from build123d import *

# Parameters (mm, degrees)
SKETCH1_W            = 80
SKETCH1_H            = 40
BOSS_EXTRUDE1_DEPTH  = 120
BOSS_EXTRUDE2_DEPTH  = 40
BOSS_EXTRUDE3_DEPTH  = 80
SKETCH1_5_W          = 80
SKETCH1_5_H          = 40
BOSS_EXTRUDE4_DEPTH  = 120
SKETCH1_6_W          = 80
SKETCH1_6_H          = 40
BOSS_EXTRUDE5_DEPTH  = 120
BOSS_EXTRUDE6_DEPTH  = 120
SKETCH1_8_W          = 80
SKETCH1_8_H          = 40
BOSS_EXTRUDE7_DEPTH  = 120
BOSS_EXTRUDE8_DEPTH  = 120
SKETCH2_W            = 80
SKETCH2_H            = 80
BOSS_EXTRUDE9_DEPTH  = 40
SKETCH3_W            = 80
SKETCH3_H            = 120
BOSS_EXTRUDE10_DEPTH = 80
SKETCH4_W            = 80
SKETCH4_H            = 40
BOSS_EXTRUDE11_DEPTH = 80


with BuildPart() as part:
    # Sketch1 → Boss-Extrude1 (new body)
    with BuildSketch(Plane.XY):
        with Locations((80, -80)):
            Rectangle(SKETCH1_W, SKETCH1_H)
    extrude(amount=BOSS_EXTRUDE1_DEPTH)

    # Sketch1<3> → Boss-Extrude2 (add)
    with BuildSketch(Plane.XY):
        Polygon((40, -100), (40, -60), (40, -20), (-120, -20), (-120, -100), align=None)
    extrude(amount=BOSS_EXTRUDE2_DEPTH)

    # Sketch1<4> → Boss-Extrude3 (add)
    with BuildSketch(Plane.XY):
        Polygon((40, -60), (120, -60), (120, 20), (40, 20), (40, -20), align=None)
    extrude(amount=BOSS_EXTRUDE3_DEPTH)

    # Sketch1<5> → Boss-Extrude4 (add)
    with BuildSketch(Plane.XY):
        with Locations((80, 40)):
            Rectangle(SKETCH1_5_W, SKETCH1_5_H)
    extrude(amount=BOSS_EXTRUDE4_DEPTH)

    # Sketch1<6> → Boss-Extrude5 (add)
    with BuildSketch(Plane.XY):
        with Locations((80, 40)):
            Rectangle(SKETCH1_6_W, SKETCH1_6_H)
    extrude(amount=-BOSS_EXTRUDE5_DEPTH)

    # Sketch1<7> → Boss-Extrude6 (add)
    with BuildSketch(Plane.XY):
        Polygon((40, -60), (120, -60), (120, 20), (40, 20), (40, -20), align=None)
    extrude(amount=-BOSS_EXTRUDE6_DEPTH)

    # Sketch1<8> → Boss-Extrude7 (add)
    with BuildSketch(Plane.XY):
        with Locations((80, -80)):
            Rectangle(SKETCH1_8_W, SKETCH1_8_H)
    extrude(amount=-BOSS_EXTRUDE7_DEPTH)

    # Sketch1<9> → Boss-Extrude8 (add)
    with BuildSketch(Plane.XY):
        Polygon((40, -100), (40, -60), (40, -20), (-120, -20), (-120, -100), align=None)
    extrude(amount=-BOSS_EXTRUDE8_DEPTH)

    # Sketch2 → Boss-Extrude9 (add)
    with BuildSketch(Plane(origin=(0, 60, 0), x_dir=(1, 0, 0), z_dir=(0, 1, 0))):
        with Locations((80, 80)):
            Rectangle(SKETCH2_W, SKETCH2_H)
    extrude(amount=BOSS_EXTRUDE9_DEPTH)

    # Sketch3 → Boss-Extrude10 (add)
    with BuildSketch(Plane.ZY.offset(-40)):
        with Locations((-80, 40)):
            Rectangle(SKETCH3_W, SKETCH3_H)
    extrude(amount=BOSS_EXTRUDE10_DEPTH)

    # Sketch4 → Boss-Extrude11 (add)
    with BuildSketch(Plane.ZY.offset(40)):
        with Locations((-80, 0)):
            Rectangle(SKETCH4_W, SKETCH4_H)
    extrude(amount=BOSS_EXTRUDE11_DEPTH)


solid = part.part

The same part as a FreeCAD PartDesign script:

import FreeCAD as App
import Part
import Sketcher

V = App.Vector
Q = App.Units.Quantity


def add_polygon(sketch, points):
    """Adds a closed chain of lines whose ends are joined by coincident constraints."""
    first, n = sketch.GeometryCount, len(points)
    for a, b in zip(points, points[1:] + points[:1]):
        sketch.addGeometry(Part.LineSegment(App.Vector(*a, 0), App.Vector(*b, 0)), False)
    for i in range(n):
        sketch.addConstraint(Sketcher.Constraint("Coincident", first + i, 2, first + (i + 1) % n, 1))

doc = App.newDocument("Part")
body = doc.addObject("PartDesign::Body", "Body")

sketch1 = body.newObject("Sketcher::SketchObject", "Sketch")
sketch1.AttachmentSupport = (doc.getObject("XY_Plane"), [""])
sketch1.MapMode = "FlatFace"
add_polygon(sketch1, [(40, -60), (40, -100), (120, -100), (120, -60)])
sketch1.addConstraint([
    Sketcher.Constraint("Vertical", 0),
    Sketcher.Constraint("Horizontal", 1),
    Sketcher.Constraint("Vertical", 2),
    Sketcher.Constraint("Horizontal", 3),
    Sketcher.Constraint("DistanceX", 1, 1, 1, 2, Q("80 mm")),
    Sketcher.Constraint("DistanceY", 0, 2, 0, 1, Q("40 mm")),
    Sketcher.Constraint("DistanceX", -1, 1, 0, 2, Q("40 mm")),
    Sketcher.Constraint("DistanceY", 0, 2, -1, 1, Q("100 mm")),
])
pad1 = body.newObject("PartDesign::Pad", "Pad")
pad1.Profile = sketch1
pad1.Length = 120

sketch2 = body.newObject("Sketcher::SketchObject", "Sketch001")
sketch2.AttachmentSupport = (doc.getObject("XY_Plane"), [""])
sketch2.MapMode = "FlatFace"
add_polygon(sketch2, [(40, -100), (40, -20), (-120, -20), (-120, -100)])
sketch2.addConstraint([
    Sketcher.Constraint("Vertical", 0),
    Sketcher.Constraint("Horizontal", 1),
    Sketcher.Constraint("Vertical", 2),
    Sketcher.Constraint("Horizontal", 3),
    Sketcher.Constraint("DistanceX", 1, 2, 1, 1, Q("160 mm")),
    Sketcher.Constraint("DistanceY", 0, 1, 0, 2, Q("80 mm")),
    Sketcher.Constraint("DistanceX", -1, 1, 0, 2, Q("40 mm")),
    Sketcher.Constraint("DistanceY", 0, 2, -1, 1, Q("20 mm")),
])
pad2 = body.newObject("PartDesign::Pad", "Pad001")
pad2.Profile = sketch2
pad2.Length = 40

sketch3 = body.newObject("Sketcher::SketchObject", "Sketch002")
sketch3.AttachmentSupport = (doc.getObject("XY_Plane"), [""])
sketch3.MapMode = "FlatFace"
add_polygon(sketch3, [(40, -60), (120, -60), (120, 20), (40, 20)])
sketch3.addConstraint([
    Sketcher.Constraint("Horizontal", 0),
    Sketcher.Constraint("Vertical", 1),
    Sketcher.Constraint("Horizontal", 2),
    Sketcher.Constraint("Vertical", 3),
    Sketcher.Constraint("Equal", 2, 1),
    Sketcher.Constraint("DistanceX", 0, 1, 0, 2, Q("80 mm")),
    Sketcher.Constraint("DistanceX", -1, 1, 0, 2, Q("120 mm")),
    Sketcher.Constraint("DistanceY", 0, 2, -1, 1, Q("60 mm")),
])
pad3 = body.newObject("PartDesign::Pad", "Pad002")
pad3.Profile = sketch3
pad3.Length = 80

sketch4 = body.newObject("Sketcher::SketchObject", "Sketch003")
sketch4.AttachmentSupport = (doc.getObject("XY_Plane"), [""])
sketch4.MapMode = "FlatFace"
add_polygon(sketch4, [(40, 60), (40, 20), (120, 20), (120, 60)])
sketch4.addConstraint([
    Sketcher.Constraint("Vertical", 0),
    Sketcher.Constraint("Horizontal", 1),
    Sketcher.Constraint("Vertical", 2),
    Sketcher.Constraint("Horizontal", 3),
    Sketcher.Constraint("DistanceX", 1, 1, 1, 2, Q("80 mm")),
    Sketcher.Constraint("DistanceY", 0, 2, 0, 1, Q("40 mm")),
    Sketcher.Constraint("DistanceX", -1, 1, 0, 2, Q("40 mm")),
    Sketcher.Constraint("DistanceY", -1, 1, 0, 2, Q("20 mm")),
])
pad4 = body.newObject("PartDesign::Pad", "Pad003")
pad4.Profile = sketch4
pad4.Length = 120

sketch5 = body.newObject("Sketcher::SketchObject", "Sketch004")
sketch5.AttachmentSupport = (doc.getObject("XY_Plane"), [""])
sketch5.MapMode = "FlatFace"
add_polygon(sketch5, [(40, 60), (40, 20), (120, 20), (120, 60)])
sketch5.addConstraint([
    Sketcher.Constraint("Vertical", 0),
    Sketcher.Constraint("Horizontal", 1),
    Sketcher.Constraint("Vertical", 2),
    Sketcher.Constraint("Horizontal", 3),
    Sketcher.Constraint("DistanceX", 1, 1, 1, 2, Q("80 mm")),
    Sketcher.Constraint("DistanceY", 0, 2, 0, 1, Q("40 mm")),
    Sketcher.Constraint("DistanceX", -1, 1, 0, 2, Q("40 mm")),
    Sketcher.Constraint("DistanceY", -1, 1, 0, 2, Q("20 mm")),
])
pad5 = body.newObject("PartDesign::Pad", "Pad004")
pad5.Profile = sketch5
pad5.Length = 120
pad5.Reversed = True

sketch6 = body.newObject("Sketcher::SketchObject", "Sketch005")
sketch6.AttachmentSupport = (doc.getObject("XY_Plane"), [""])
sketch6.MapMode = "FlatFace"
add_polygon(sketch6, [(40, -60), (120, -60), (120, 20), (40, 20)])
sketch6.addConstraint([
    Sketcher.Constraint("Horizontal", 0),
    Sketcher.Constraint("Vertical", 1),
    Sketcher.Constraint("Horizontal", 2),
    Sketcher.Constraint("Vertical", 3),
    Sketcher.Constraint("Equal", 2, 1),
    Sketcher.Constraint("DistanceX", 0, 1, 0, 2, Q("80 mm")),
    Sketcher.Constraint("DistanceX", -1, 1, 0, 2, Q("120 mm")),
    Sketcher.Constraint("DistanceY", 0, 2, -1, 1, Q("60 mm")),
])
pad6 = body.newObject("PartDesign::Pad", "Pad005")
pad6.Profile = sketch6
pad6.Length = 120
pad6.Reversed = True

sketch7 = body.newObject("Sketcher::SketchObject", "Sketch006")
sketch7.AttachmentSupport = (doc.getObject("XY_Plane"), [""])
sketch7.MapMode = "FlatFace"
add_polygon(sketch7, [(40, -60), (40, -100), (120, -100), (120, -60)])
sketch7.addConstraint([
    Sketcher.Constraint("Vertical", 0),
    Sketcher.Constraint("Horizontal", 1),
    Sketcher.Constraint("Vertical", 2),
    Sketcher.Constraint("Horizontal", 3),
    Sketcher.Constraint("DistanceX", 1, 1, 1, 2, Q("80 mm")),
    Sketcher.Constraint("DistanceY", 0, 2, 0, 1, Q("40 mm")),
    Sketcher.Constraint("DistanceX", -1, 1, 0, 2, Q("40 mm")),
    Sketcher.Constraint("DistanceY", 0, 2, -1, 1, Q("100 mm")),
])
pad7 = body.newObject("PartDesign::Pad", "Pad006")
pad7.Profile = sketch7
pad7.Length = 120
pad7.Reversed = True

sketch8 = body.newObject("Sketcher::SketchObject", "Sketch007")
sketch8.AttachmentSupport = (doc.getObject("XY_Plane"), [""])
sketch8.MapMode = "FlatFace"
add_polygon(sketch8, [(40, -100), (40, -20), (-120, -20), (-120, -100)])
sketch8.addConstraint([
    Sketcher.Constraint("Vertical", 0),
    Sketcher.Constraint("Horizontal", 1),
    Sketcher.Constraint("Vertical", 2),
    Sketcher.Constraint("Horizontal", 3),
    Sketcher.Constraint("DistanceX", 1, 2, 1, 1, Q("160 mm")),
    Sketcher.Constraint("DistanceY", 0, 1, 0, 2, Q("80 mm")),
    Sketcher.Constraint("DistanceX", -1, 1, 0, 2, Q("40 mm")),
    Sketcher.Constraint("DistanceY", 0, 2, -1, 1, Q("20 mm")),
])
pad8 = body.newObject("PartDesign::Pad", "Pad007")
pad8.Profile = sketch8
pad8.Length = 120
pad8.Reversed = True

sketch9 = body.newObject("Sketcher::SketchObject", "Sketch008")
sketch9.AttachmentSupport = (doc.getObject("XZ_Plane"), [""])
sketch9.MapMode = "FlatFace"
sketch9.AttachmentOffset = App.Placement(V(0, 0, -60), App.Rotation())
add_polygon(sketch9, [(40, -120), (40, -40), (120, -40), (120, -120)])
sketch9.addConstraint([
    Sketcher.Constraint("Vertical", 0),
    Sketcher.Constraint("Horizontal", 1),
    Sketcher.Constraint("Vertical", 2),
    Sketcher.Constraint("Horizontal", 3),
    Sketcher.Constraint("Equal", 3, 0),
    Sketcher.Constraint("DistanceX", 1, 1, 1, 2, Q("80 mm")),
    Sketcher.Constraint("DistanceX", -1, 1, 0, 2, Q("40 mm")),
    Sketcher.Constraint("DistanceY", 0, 2, -1, 1, Q("40 mm")),
])
pad9 = body.newObject("PartDesign::Pad", "Pad008")
pad9.Profile = sketch9
pad9.Length = 40
pad9.Reversed = True

sketch10 = body.newObject("Sketcher::SketchObject", "Sketch009")
sketch10.AttachmentSupport = (doc.getObject("YZ_Plane"), [""])
sketch10.MapMode = "FlatFace"
sketch10.AttachmentOffset = App.Placement(V(0, 0, 40), App.Rotation())
add_polygon(sketch10, [(100, -120), (-20, -120), (-20, -40), (100, -40)])
sketch10.addConstraint([
    Sketcher.Constraint("Horizontal", 0),
    Sketcher.Constraint("Vertical", 1),
    Sketcher.Constraint("Horizontal", 2),
    Sketcher.Constraint("Vertical", 3),
    Sketcher.Constraint("DistanceX", 0, 2, 0, 1, Q("120 mm")),
    Sketcher.Constraint("DistanceY", 1, 1, 1, 2, Q("80 mm")),
    Sketcher.Constraint("DistanceX", 0, 2, -1, 1, Q("20 mm")),
    Sketcher.Constraint("DistanceY", 0, 2, -1, 1, Q("120 mm")),
])
pad10 = body.newObject("PartDesign::Pad", "Pad009")
pad10.Profile = sketch10
pad10.Length = 80
pad10.Reversed = True

sketch11 = body.newObject("Sketcher::SketchObject", "Sketch010")
sketch11.AttachmentSupport = (doc.getObject("YZ_Plane"), [""])
sketch11.MapMode = "FlatFace"
sketch11.AttachmentOffset = App.Placement(V(0, 0, -40), App.Rotation())
add_polygon(sketch11, [(20, -120), (-20, -120), (-20, -40), (20, -40)])
sketch11.addConstraint([
    Sketcher.Constraint("Horizontal", 0),
    Sketcher.Constraint("Vertical", 1),
    Sketcher.Constraint("Horizontal", 2),
    Sketcher.Constraint("Vertical", 3),
    Sketcher.Constraint("DistanceX", 0, 2, 0, 1, Q("40 mm")),
    Sketcher.Constraint("DistanceY", 1, 1, 1, 2, Q("80 mm")),
    Sketcher.Constraint("DistanceX", 0, 2, -1, 1, Q("20 mm")),
    Sketcher.Constraint("DistanceY", 0, 2, -1, 1, Q("120 mm")),
])
pad11 = body.newObject("PartDesign::Pad", "Pad010")
pad11.Profile = sketch11
pad11.Length = 80
pad11.Reversed = True

doc.recompute()
